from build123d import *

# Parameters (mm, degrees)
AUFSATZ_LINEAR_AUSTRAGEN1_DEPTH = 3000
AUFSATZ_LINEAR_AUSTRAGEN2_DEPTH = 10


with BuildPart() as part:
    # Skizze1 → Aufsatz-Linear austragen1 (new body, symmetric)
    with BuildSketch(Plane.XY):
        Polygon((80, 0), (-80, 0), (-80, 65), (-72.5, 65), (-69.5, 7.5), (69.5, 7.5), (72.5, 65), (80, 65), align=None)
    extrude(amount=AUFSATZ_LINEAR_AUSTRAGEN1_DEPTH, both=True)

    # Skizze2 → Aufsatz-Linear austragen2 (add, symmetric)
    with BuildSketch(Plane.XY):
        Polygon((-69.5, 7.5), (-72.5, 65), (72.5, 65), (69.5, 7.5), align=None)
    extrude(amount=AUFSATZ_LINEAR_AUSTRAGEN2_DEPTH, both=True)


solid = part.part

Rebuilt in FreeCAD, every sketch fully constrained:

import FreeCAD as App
import Part
import Sketcher
from FreeCAD import Vector


def add_polygon(sketch, points):
    """Adds a closed chain of lines whose ends are joined by coincident constraints."""
    first, n = sketch.GeometryCount, len(points)
    for a, b in zip(points, points[1:] + points[:1]):
        sketch.addGeometry(Part.LineSegment(App.Vector(*a, 0), App.Vector(*b, 0)), False)
    for i in range(n):
        sketch.addConstraint(Sketcher.Constraint("Coincident", first + i, 2, first + (i + 1) % n, 1))

doc = App.newDocument("Part")
body = doc.addObject("PartDesign::Body", "Body")

sketch1 = doc.addObject("Sketcher::SketchObject", "Sketch")
body.addObject(sketch1)
sketch1.AttachmentSupport = (doc.XY_Plane, [""])
sketch1.MapMode = "FlatFace"
add_polygon(sketch1, [(-80, 0), (80, 0), (80, 65), (72, 65), (70, 8), (-70, 8), (-72, 65), (-80, 65)])
sketch1.addConstraint(Sketcher.Constraint("Horizontal", 0))
sketch1.addConstraint(Sketcher.Constraint("Vertical", 1))
sketch1.addConstraint(Sketcher.Constraint("Horizontal", 2))
sketch1.addConstraint(Sketcher.Constraint("Horizontal", 4))
sketch1.addConstraint(Sketcher.Constraint("Horizontal", 6))
sketch1.addConstraint(Sketcher.Constraint("Vertical", 7))
sketch1.addConstraint(Sketcher.Constraint("Symmetric", 0, 2, 7, 2, -1, 1))
sketch1.addConstraint(Sketcher.Constraint("Symmetric", 2, 2, 5, 2, -2))
sketch1.addConstraint(Sketcher.Constraint("Equal", 3, 5))
sketch1.addConstraint(Sketcher.Constraint("DistanceX", 0, 1, 0, 2, 160.0))
sketch1.addConstraint(Sketcher.Constraint("DistanceX", 4, 2, 4, 1, 139.0))
sketch1.addConstraint(Sketcher.Constraint("DistanceY", 1, 1, 1, 2, 65.0))
sketch1.addConstraint(Sketcher.Constraint("DistanceX", 2, 2, 2, 1, 7.5))
sketch1.addConstraint(Sketcher.Constraint("DistanceY", -1, 1, 3, 2, 7.5))
pad1 = doc.addObject("PartDesign::Pad", "Pad")
body.addObject(pad1)
pad1.Profile = sketch1
pad1.Length = 6000
pad1.Midplane = True

sketch2 = doc.addObject("Sketcher::SketchObject", "Sketch001")
body.addObject(sketch2)
sketch2.AttachmentSupport = (doc.XY_Plane, [""])
sketch2.MapMode = "FlatFace"
add_polygon(sketch2, [(-72, 65), (-70, 8), (70, 8), (72, 65)])
sketch2.addConstraint(Sketcher.Constraint("Horizontal", 1))
sketch2.addConstraint(Sketcher.Constraint("Horizontal", 3))
sketch2.addConstraint(Sketcher.Constraint("Equal", 0, 2))
sketch2.addConstraint(Sketcher.Constraint("DistanceX", 1, 1, 1, 2, 139.0))
sketch2.addConstraint(Sketcher.Constraint("DistanceX", 3, 2, 3, 1, 145.0))
sketch2.addConstraint(Sketcher.Constraint("DistanceY", -1, 1, 2, 2, 65.0))
sketch2.addConstraint(Sketcher.Constraint("DistanceX", 0, 2, -1, 1, 69.5))
sketch2.addConstraint(Sketcher.Constraint("DistanceY", -1, 1, 0, 2, 7.5))
pad2 = doc.addObject("PartDesign::Pad", "Pad001")
body.addObject(pad2)
pad2.Profile = sketch2
pad2.Length = 20
pad2.Midplane = True

doc.recompute()
